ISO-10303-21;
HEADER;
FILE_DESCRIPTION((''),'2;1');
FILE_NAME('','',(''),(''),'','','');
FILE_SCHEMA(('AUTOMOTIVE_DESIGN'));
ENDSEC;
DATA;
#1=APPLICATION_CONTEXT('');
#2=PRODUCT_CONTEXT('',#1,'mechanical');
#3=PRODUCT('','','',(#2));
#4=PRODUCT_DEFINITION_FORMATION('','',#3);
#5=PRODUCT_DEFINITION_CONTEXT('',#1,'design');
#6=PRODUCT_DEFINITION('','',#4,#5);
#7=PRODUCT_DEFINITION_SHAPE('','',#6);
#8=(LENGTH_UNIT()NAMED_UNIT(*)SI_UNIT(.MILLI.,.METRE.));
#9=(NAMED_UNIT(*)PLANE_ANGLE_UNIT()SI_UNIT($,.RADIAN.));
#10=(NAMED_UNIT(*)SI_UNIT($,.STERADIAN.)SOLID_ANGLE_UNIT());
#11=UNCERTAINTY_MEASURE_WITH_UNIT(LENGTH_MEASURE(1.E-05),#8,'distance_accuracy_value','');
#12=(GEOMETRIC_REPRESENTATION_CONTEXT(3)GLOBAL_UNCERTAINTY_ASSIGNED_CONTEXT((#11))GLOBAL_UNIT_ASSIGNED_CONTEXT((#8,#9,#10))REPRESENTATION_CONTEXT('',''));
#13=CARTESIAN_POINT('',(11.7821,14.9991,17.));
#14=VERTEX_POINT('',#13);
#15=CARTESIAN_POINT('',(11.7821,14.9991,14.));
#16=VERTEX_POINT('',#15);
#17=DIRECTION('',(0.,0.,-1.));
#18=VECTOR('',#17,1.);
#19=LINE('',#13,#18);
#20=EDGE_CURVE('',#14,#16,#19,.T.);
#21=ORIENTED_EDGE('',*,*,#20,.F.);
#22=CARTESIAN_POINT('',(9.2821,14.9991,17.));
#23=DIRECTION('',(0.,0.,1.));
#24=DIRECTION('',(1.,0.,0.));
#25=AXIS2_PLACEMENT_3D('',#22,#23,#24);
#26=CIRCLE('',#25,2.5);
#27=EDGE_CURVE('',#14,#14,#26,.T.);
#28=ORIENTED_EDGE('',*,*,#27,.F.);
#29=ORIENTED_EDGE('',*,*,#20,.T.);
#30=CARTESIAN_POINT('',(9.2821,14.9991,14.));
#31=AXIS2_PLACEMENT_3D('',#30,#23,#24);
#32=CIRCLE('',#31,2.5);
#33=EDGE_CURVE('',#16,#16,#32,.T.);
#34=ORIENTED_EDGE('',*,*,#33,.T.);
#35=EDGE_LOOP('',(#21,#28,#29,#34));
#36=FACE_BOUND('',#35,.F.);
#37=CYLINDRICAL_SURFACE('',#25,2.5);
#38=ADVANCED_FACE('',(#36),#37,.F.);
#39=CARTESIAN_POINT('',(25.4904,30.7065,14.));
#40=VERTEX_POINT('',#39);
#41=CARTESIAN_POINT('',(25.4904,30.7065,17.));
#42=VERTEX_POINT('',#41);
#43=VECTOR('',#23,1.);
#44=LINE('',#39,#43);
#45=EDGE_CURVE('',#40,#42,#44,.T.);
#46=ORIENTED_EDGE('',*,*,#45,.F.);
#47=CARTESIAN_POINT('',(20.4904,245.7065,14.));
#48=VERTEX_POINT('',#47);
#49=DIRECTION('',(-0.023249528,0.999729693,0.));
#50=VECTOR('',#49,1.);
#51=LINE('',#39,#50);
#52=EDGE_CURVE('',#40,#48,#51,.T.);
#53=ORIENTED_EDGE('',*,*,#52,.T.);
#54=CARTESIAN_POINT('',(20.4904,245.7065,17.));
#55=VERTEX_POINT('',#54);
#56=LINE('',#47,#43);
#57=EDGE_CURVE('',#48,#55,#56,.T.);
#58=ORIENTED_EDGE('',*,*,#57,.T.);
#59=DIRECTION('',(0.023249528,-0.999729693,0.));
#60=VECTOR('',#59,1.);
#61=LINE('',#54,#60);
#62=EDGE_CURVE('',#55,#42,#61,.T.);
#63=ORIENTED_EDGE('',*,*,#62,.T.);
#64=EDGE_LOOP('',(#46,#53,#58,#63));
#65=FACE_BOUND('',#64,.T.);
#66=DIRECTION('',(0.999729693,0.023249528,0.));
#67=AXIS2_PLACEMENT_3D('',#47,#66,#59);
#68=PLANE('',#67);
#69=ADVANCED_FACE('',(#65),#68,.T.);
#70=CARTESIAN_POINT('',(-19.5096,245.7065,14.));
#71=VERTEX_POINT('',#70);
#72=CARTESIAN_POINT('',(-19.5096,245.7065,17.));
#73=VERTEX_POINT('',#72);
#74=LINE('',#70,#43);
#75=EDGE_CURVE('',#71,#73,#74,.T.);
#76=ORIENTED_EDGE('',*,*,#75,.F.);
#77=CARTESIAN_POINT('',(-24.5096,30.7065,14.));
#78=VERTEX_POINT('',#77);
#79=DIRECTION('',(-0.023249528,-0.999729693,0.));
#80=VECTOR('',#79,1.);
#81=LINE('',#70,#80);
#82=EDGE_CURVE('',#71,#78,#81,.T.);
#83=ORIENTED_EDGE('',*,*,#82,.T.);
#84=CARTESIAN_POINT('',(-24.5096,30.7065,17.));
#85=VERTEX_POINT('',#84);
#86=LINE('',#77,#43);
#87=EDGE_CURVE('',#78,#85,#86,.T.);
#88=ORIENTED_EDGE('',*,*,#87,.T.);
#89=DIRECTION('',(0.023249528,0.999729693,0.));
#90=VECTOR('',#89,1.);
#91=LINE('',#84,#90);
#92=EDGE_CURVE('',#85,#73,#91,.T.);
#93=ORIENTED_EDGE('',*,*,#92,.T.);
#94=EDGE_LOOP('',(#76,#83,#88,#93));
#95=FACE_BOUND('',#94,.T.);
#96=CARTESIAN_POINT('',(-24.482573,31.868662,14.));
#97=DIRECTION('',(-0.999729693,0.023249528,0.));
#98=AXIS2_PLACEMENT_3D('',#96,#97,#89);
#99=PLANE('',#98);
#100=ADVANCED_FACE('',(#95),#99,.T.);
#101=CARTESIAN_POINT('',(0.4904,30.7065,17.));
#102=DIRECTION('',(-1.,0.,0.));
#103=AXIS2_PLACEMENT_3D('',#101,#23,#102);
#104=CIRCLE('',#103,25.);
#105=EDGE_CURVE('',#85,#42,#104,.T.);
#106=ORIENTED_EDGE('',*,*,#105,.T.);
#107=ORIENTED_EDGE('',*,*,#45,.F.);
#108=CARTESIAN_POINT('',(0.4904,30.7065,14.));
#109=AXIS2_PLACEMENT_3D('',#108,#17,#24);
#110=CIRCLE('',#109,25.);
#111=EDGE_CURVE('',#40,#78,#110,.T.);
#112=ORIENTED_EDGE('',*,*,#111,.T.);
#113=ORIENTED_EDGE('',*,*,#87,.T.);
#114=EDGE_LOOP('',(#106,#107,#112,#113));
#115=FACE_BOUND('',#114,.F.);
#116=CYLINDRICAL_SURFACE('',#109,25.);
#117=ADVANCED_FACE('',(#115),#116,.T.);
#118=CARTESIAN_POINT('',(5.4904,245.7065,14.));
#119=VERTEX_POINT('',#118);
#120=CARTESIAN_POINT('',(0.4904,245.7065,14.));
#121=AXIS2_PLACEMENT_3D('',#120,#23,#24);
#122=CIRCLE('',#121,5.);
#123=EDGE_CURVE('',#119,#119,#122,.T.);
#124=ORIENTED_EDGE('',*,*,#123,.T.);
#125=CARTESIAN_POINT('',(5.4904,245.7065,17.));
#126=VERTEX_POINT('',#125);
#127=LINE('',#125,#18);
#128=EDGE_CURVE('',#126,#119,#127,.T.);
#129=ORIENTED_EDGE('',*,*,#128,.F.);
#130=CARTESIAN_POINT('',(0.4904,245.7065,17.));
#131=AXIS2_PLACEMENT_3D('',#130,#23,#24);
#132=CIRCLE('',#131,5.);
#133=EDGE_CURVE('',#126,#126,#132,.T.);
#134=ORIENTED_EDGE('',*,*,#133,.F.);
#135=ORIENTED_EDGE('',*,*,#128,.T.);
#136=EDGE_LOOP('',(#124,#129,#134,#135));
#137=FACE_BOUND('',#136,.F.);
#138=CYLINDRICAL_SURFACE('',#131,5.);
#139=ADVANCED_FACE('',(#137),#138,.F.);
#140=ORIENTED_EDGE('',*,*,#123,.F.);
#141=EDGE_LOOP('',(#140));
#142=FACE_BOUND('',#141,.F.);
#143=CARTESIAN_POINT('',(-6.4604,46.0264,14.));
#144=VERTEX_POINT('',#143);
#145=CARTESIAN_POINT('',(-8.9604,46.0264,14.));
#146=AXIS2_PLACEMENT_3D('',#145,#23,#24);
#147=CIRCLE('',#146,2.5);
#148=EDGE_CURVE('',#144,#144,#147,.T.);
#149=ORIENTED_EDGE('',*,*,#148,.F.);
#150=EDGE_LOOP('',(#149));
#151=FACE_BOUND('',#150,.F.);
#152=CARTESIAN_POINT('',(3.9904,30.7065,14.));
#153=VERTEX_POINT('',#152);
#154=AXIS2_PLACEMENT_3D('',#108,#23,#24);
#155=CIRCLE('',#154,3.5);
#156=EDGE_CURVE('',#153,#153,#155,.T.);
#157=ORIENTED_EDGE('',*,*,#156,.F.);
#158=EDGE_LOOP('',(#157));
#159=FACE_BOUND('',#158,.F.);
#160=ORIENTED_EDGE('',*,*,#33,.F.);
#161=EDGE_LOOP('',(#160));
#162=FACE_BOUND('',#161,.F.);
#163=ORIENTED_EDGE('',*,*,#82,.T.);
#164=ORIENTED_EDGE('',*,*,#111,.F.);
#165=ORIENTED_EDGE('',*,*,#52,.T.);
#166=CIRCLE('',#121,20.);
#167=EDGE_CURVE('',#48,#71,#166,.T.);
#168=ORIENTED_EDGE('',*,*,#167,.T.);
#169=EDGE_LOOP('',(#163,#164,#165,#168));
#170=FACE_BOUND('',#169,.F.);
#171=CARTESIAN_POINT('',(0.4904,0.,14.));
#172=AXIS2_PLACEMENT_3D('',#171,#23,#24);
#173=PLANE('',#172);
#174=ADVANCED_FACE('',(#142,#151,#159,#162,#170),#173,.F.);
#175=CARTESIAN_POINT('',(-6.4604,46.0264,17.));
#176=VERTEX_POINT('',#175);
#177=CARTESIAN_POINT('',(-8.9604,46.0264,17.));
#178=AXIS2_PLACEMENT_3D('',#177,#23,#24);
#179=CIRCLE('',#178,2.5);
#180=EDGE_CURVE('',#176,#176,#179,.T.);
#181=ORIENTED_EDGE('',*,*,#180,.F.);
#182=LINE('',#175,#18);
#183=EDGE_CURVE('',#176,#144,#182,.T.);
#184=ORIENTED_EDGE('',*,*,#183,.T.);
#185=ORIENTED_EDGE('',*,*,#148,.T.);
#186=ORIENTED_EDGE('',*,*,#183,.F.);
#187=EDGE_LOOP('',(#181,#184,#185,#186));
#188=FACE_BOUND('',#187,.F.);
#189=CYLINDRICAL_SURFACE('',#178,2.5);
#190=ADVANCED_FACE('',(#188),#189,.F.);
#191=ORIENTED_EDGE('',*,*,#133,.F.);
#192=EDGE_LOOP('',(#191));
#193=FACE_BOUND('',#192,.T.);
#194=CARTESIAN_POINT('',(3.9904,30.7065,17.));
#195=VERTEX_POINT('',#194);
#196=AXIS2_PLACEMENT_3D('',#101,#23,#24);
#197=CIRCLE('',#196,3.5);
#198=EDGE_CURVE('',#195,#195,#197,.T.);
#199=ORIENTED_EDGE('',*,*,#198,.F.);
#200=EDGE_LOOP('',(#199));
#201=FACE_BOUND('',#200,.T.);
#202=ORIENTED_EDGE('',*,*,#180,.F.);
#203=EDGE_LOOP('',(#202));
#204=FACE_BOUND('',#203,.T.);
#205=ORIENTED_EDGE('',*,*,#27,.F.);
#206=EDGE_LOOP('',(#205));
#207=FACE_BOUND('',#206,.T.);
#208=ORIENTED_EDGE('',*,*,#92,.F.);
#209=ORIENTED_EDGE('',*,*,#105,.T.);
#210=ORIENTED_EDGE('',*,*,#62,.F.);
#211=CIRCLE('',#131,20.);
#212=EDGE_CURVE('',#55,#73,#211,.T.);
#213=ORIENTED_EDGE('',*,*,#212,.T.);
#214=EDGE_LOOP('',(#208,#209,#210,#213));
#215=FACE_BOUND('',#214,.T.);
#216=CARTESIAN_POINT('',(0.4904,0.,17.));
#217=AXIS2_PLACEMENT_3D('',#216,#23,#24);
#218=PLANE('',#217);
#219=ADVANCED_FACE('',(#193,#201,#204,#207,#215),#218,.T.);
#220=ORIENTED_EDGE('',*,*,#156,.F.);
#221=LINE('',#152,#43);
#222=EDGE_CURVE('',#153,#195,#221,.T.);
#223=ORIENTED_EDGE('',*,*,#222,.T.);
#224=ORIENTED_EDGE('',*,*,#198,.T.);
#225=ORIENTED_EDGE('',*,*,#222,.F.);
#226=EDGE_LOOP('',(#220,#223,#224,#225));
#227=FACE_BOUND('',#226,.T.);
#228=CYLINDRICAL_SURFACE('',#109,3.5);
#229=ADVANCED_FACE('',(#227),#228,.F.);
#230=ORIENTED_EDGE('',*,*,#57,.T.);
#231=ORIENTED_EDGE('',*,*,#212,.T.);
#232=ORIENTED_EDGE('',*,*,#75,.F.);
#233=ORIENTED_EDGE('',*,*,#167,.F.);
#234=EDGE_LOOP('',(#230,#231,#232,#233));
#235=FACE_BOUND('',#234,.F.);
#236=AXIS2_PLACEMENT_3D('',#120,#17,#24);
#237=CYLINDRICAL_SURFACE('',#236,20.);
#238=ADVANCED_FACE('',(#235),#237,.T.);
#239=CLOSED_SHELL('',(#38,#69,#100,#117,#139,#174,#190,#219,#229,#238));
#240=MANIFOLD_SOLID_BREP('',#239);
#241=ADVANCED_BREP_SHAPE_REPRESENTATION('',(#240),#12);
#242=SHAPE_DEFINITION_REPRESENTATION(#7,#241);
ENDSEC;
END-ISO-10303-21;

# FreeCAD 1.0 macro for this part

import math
import FreeCAD as App
import Part
import Sketcher
from FreeCAD import Vector

doc = App.newDocument("Part")
params = doc.addObject("Spreadsheet::Sheet", "Params")
for row, (alias, value) in enumerate([
    ("sketch1_radius", "25 mm"),
    ("sketch1_diameter", "7 mm"),
    ("sketch1_radius2", "20 mm"),
    ("pad1_length", "3 mm"),
    ("sketch2_diameter", "10 mm"),
    ("pocket1_length", "3 mm"),
    ("sketch3_diameter", "5 mm"),
    ("pocket2_length", "10 mm"),
], start=1):
    params.set(f"A{row}", alias)
    params.set(f"B{row}", "=" + value)
    params.setAlias(f"B{row}", alias)

body = doc.addObject("PartDesign::Body", "Body")

# Sketch on XY plane
sketch1 = body.newObject("Sketcher::SketchObject", "Sketch")
sketch1.AttachmentSupport = (doc.getObject("XY_Plane"), [""])
sketch1.MapMode = "FlatFace"
sketch1.AttachmentOffset = App.Placement(Vector(0, 0, 14), App.Rotation())
sketch1.addGeometry([
    Part.ArcOfCircle(Part.Circle(Vector(0.5, 245.7, 0), Vector(0, 0, 1), 20), math.radians(0), math.radians(180)),  # 0
    Part.LineSegment(Vector(-19.5, 245.7, 0), Vector(-24.5, 30.7, 0)),  # 1
    Part.ArcOfCircle(Part.Circle(Vector(0.5, 30.7, 0), Vector(0, 0, 1), 25), math.radians(180), math.radians(360)),  # 2
    Part.LineSegment(Vector(25.5, 30.7, 0), Vector(20.5, 245.7, 0)),  # 3
    Part.Circle(Vector(0.5, 30.7, 0), Vector(0, 0, 1), 3.5),  # 4
], False)
sketch1.addConstraint([
    Sketcher.Constraint("Coincident", 0, 2, 1, 1),
    Sketcher.Constraint("Coincident", 1, 2, 2, 1),
    Sketcher.Constraint("Coincident", 2, 2, 3, 1),
    Sketcher.Constraint("Coincident", 3, 2, 0, 1),
    Sketcher.Constraint("Coincident", 4, 3, 2, 3),
    Sketcher.Constraint("Horizontal", 4, 3, 1, 2),
    Sketcher.Constraint("Horizontal", 1, 2, 2, 2),
    Sketcher.Constraint("Horizontal", 0, 2, 3, 2),
    Sketcher.Constraint("Vertical", 0, 3, 2, 3),
    Sketcher.Constraint("Radius", 2, 25.0),
    Sketcher.Constraint("Diameter", 4, 7.0),
    Sketcher.Constraint("Radius", 0, 20.0),
    Sketcher.Constraint("DistanceY", 2, 3, 0, 3, 215.0),
    Sketcher.Constraint("DistanceY", 2, 3, 0, 2, 215.0),
    Sketcher.Constraint("DistanceX", -1, 1, 0, 3, 0.4904),
    Sketcher.Constraint("DistanceY", -1, 1, 0, 3, 245.7065),
])
sketch1.setExpression("Constraints[9]", "Params.sketch1_radius")
sketch1.setExpression("Constraints[10]", "Params.sketch1_diameter")
sketch1.setExpression("Constraints[11]", "Params.sketch1_radius2")
pad1 = body.newObject("PartDesign::Pad", "Pad")
pad1.Profile = sketch1
pad1.setExpression("Length", "Params.pad1_length")

# Sketch on XY plane
sketch2 = body.newObject("Sketcher::SketchObject", "Sketch001")
sketch2.AttachmentSupport = (doc.getObject("XY_Plane"), [""])
sketch2.MapMode = "FlatFace"
sketch2.AttachmentOffset = App.Placement(Vector(0, 0, 17), App.Rotation())
sketch2.addGeometry(Part.Circle(Vector(0, 246, 0), Vector(0, 0, 1), 5), False)
sketch2.addConstraint([
    Sketcher.Constraint("Diameter", 0, 10.0),
    Sketcher.Constraint("DistanceX", -1, 1, 0, 3, 0.4904),
    Sketcher.Constraint("DistanceY", -1, 1, 0, 3, 245.7065),
])
sketch2.setExpression("Constraints[0]", "Params.sketch2_diameter")
pocket1 = body.newObject("PartDesign::Pocket", "Pocket")
pocket1.Profile = sketch2
pocket1.setExpression("Length", "Params.pocket1_length")

# Sketch on XY plane
sketch3 = body.newObject("Sketcher::SketchObject", "Sketch002")
sketch3.AttachmentSupport = (doc.getObject("XY_Plane"), [""])
sketch3.MapMode = "FlatFace"
sketch3.AttachmentOffset = App.Placement(Vector(0, 0, 17), App.Rotation())
sketch3.addGeometry([
    Part.Circle(Vector(-9, 46, 0), Vector(0, 0, 1), 2.5),
    Part.Circle(Vector(9.3, 15, 0), Vector(0, 0, 1), 2.5),
], False)
sketch3.addConstraint([
    Sketcher.Constraint("Equal", 0, 1),
    Sketcher.Constraint("Diameter", 0, 5.0),
    Sketcher.Constraint("DistanceX", -1, 1, 1, 3, 9.282),
    Sketcher.Constraint("DistanceY", -1, 1, 1, 3, 14.999),
    Sketcher.Constraint("DistanceX", 0, 3, -1, 1, 8.9604),
    Sketcher.Constraint("DistanceY", -1, 1, 0, 3, 46.0264),
])
sketch3.setExpression("Constraints[1]", "Params.sketch3_diameter")
pocket2 = body.newObject("PartDesign::Pocket", "Pocket001")
pocket2.Profile = sketch3
pocket2.setExpression("Length", "Params.pocket2_length")

doc.recompute()
